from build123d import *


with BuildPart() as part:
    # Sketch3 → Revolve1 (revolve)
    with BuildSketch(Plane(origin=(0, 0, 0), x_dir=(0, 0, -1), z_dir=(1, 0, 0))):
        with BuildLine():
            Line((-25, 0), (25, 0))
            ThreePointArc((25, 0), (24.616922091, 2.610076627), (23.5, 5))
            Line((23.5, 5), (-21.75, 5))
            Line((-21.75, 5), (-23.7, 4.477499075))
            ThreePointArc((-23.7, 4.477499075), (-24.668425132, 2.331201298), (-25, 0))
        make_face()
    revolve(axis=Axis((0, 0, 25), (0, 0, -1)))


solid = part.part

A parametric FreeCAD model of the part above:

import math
import FreeCAD as App
import Part
import Sketcher
from FreeCAD import Vector
Q = App.Units.Quantity

doc = App.newDocument("Part")
body = doc.addObject("PartDesign::Body", "Body")

# Sketch on YZ plane
sketch1 = body.newObject("Sketcher::SketchObject", "Sketch")
sketch1.AttachmentSupport = (doc.getObject("YZ_Plane"), [""])
sketch1.MapMode = "FlatFace"
sketch1.addGeometry(Part.LineSegment(Vector(0, 25, 0), Vector(0, -25, 0)), False)
sketch1.addGeometry(Part.ArcOfCircle(Part.Circle(Vector(0, -15.9, 0), Vector(0, 0, 1), 9.1), math.radians(-90), math.radians(-57)), False)
sketch1.addGeometry(Part.LineSegment(Vector(5, -23.5, 0), Vector(5, 21.8, 0)), False)
sketch1.addGeometry(Part.LineSegment(Vector(5, 21.8, 0), Vector(4.5, 23.7, 0)), False)
sketch1.addGeometry(Part.ArcOfCircle(Part.Circle(Vector(0, 16.6, 0), Vector(0, 0, 1), 8.4), math.radians(58), math.radians(90)), False)
sketch1.addConstraint(Sketcher.Constraint("Coincident", 0, 2, 1, 1))
sketch1.addConstraint(Sketcher.Constraint("Coincident", 1, 2, 2, 1))
sketch1.addConstraint(Sketcher.Constraint("Coincident", 2, 2, 3, 1))
sketch1.addConstraint(Sketcher.Constraint("Coincident", 3, 2, 4, 1))
sketch1.addConstraint(Sketcher.Constraint("Coincident", 4, 2, 0, 1))
sketch1.addConstraint(Sketcher.Constraint("Vertical", 0))
sketch1.addConstraint(Sketcher.Constraint("Vertical", 2))
sketch1.addConstraint(Sketcher.Constraint("Symmetric", 0, 2, 4, 2, -1, 1))
sketch1.addConstraint(Sketcher.Constraint("PointOnObject", 1, 3, -2))
sketch1.addConstraint(Sketcher.Constraint("PointOnObject", 4, 3, -2))
sketch1.addConstraint(Sketcher.Constraint("DistanceY", 0, 2, 0, 1, 50.0))
sketch1.addConstraint(Sketcher.Constraint("Angle", 3, Q("105 deg")))
sketch1.addConstraint(Sketcher.Constraint("DistanceX", -1, 1, 1, 2, 5.0))
sketch1.addConstraint(Sketcher.Constraint("DistanceY", 2, 1, 2, 2, 45.25))
sketch1.addConstraint(Sketcher.Constraint("DistanceY", 1, 2, -1, 1, 23.5))
sketch1.addConstraint(Sketcher.Constraint("DistanceY", -1, 1, 3, 2, 23.7))
revolution = body.newObject("PartDesign::Revolution", "Revolution")
revolution.Profile = sketch1
revolution.ReferenceAxis = (sketch1, ["V_Axis"])
revolution.Angle = 360

doc.recompute()
